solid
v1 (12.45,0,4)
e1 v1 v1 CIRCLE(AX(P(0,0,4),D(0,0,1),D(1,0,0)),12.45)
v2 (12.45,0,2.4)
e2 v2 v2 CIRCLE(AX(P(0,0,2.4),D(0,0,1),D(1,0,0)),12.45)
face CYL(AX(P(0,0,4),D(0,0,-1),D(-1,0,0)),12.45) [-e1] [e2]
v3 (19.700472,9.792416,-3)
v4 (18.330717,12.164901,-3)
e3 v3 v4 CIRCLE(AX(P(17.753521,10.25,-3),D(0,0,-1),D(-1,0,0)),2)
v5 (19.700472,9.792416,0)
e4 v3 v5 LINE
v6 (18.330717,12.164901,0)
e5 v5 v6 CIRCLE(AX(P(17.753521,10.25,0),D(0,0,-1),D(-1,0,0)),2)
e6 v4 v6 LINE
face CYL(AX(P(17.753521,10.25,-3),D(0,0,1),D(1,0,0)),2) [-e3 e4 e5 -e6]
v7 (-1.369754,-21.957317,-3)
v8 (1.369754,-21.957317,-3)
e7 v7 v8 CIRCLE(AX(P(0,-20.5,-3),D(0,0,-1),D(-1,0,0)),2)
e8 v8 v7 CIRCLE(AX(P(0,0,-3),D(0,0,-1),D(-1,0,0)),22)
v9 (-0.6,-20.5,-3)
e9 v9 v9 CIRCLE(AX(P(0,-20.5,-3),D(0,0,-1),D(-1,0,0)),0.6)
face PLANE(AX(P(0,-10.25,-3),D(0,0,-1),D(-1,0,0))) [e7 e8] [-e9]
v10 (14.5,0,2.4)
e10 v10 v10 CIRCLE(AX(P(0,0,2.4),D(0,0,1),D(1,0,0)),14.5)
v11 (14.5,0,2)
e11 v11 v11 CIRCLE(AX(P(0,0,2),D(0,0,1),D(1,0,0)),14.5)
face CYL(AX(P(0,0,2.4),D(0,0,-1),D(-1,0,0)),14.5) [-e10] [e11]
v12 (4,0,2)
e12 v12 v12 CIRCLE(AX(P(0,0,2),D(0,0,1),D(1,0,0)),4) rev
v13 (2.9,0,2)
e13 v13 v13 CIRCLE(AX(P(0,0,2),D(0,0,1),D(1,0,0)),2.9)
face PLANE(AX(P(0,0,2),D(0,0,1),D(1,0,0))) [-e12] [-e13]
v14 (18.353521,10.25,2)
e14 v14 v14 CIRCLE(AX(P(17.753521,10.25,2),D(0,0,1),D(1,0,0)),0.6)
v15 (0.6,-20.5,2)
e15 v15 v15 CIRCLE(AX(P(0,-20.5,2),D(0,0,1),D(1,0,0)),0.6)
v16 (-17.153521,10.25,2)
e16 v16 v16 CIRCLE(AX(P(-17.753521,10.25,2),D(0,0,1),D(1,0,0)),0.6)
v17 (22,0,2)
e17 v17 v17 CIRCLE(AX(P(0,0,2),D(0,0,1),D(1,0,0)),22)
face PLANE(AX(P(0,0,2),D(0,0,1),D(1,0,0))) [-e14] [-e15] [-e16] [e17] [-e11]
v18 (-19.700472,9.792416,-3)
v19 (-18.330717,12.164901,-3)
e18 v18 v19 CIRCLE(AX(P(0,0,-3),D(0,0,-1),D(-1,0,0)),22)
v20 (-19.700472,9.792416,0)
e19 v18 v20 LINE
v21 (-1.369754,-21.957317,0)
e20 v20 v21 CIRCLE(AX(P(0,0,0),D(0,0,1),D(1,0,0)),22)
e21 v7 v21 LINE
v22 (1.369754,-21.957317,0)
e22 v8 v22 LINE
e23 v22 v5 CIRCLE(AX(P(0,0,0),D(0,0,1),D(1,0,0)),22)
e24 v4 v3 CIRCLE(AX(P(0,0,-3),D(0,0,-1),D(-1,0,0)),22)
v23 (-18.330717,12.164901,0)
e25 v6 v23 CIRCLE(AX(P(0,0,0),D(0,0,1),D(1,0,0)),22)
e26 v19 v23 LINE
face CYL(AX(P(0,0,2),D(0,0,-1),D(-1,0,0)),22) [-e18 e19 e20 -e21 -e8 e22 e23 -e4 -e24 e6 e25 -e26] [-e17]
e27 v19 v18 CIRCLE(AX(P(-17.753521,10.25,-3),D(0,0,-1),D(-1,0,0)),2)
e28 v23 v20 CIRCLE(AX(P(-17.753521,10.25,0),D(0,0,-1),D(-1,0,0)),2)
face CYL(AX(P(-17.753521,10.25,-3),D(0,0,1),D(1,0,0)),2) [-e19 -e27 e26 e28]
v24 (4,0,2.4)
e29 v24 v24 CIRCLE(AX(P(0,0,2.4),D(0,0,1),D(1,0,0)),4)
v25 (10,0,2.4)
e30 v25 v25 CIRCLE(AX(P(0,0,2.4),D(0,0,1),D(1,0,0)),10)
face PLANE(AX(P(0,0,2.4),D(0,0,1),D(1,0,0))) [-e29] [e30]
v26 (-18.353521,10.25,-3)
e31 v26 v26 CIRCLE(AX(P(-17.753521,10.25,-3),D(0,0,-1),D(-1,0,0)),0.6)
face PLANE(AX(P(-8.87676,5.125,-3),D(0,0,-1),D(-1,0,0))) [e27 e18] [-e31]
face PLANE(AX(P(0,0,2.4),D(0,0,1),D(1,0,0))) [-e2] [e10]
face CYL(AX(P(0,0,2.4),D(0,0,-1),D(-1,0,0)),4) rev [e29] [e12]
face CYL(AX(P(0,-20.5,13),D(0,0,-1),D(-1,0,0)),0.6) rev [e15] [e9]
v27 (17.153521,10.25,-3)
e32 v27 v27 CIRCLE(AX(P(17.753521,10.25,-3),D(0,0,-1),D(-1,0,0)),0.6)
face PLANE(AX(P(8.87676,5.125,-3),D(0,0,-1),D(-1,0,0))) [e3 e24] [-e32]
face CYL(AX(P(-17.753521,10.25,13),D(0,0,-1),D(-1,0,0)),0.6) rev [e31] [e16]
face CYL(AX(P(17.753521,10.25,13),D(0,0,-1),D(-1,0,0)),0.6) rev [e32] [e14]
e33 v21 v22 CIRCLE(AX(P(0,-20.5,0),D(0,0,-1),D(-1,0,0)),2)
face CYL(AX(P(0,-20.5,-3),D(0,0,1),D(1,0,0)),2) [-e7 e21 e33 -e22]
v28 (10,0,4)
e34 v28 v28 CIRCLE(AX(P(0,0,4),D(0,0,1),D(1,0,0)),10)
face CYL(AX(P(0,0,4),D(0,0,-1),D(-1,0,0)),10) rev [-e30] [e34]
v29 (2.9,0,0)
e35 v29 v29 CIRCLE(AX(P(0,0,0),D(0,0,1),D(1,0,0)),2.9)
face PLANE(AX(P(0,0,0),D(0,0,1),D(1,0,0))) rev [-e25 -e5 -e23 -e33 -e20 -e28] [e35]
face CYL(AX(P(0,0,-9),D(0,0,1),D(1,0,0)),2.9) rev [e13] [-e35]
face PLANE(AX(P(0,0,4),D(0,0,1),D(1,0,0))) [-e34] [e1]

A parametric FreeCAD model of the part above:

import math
import FreeCAD as App
import Part
import Sketcher

doc = App.newDocument("Part")
body = doc.addObject("PartDesign::Body", "Body")

# Sketch on XY plane
sketch1 = body.newObject("Sketcher::SketchObject", "Sketch")
sketch1.AttachmentSupport = (doc.getObject("XY_Plane"), [""])
sketch1.MapMode = "FlatFace"
sketch1.addGeometry(Part.Circle(App.Vector(0, 0, 0), App.Vector(0, 0, 1), 22), False)
sketch1.addConstraint([
    Sketcher.Constraint("Coincident", 0, 3, -1, 1),
    Sketcher.Constraint("Diameter", 0, 44.0),
])
pad1 = body.newObject("PartDesign::Pad", "Pad")
pad1.Profile = sketch1
pad1.Length = 2

# Sketch on XY plane
sketch2 = body.newObject("Sketcher::SketchObject", "Sketch001")
sketch2.AttachmentSupport = (doc.getObject("XY_Plane"), [""])
sketch2.MapMode = "FlatFace"
sketch2.AttachmentOffset = App.Placement(App.Vector(0, 0, 2), App.Rotation())
sketch2.addGeometry([
    Part.Circle(App.Vector(0, 0, 0), App.Vector(0, 0, 1), 12.45),
    Part.Circle(App.Vector(0, 0, 0), App.Vector(0, 0, 1), 10),
], False)
sketch2.addConstraint([
    Sketcher.Constraint("Coincident", 0, 3, -1, 1),
    Sketcher.Constraint("Coincident", 1, 3, -1, 1),
    Sketcher.Constraint("Diameter", 1, 20.0),
    Sketcher.Constraint("Diameter", 0, 24.9),
])
pad2 = body.newObject("PartDesign::Pad", "Pad001")
pad2.Profile = sketch2
pad2.Length = 2

# Sketch on XY plane
sketch3 = body.newObject("Sketcher::SketchObject", "Sketch002")
sketch3.AttachmentSupport = (doc.getObject("XY_Plane"), [""])
sketch3.MapMode = "FlatFace"
sketch3.AttachmentOffset = App.Placement(App.Vector(0, 0, 2), App.Rotation())
sketch3.addGeometry(Part.Circle(App.Vector(0, 0, 0), App.Vector(0, 0, 1), 2.9), False)
sketch3.addConstraint([
    Sketcher.Constraint("Coincident", 0, 3, -1, 1),
    Sketcher.Constraint("Diameter", 0, 5.8),
])
pocket1 = body.newObject("PartDesign::Pocket", "Pocket")
pocket1.Profile = sketch3
pocket1.Length = 11

# Sketch on XY plane
sketch4 = body.newObject("Sketcher::SketchObject", "Sketch003")
sketch4.AttachmentSupport = (doc.getObject("XY_Plane"), [""])
sketch4.MapMode = "FlatFace"
sketch4.addGeometry([
    Part.ArcOfCircle(Part.Circle(App.Vector(0, -20.5, 0), App.Vector(0, 0, 1), 2), math.radians(-46.774052), math.radians(226.774052)),  # 0
    Part.ArcOfCircle(Part.Circle(App.Vector(0, 0, 0), App.Vector(0, 0, 1), 22), math.radians(-93.569633), math.radians(-86.430367)),  # 1
    Part.ArcOfCircle(Part.Circle(App.Vector(17.753521, 10.25, 0), App.Vector(0, 0, 1), 2), math.radians(73.225948), math.radians(346.774052)),  # 2
    Part.ArcOfCircle(Part.Circle(App.Vector(0, 0, 0), App.Vector(0, 0, 1), 22), math.radians(26.430367), math.radians(33.569633)),  # 3
    Part.ArcOfCircle(Part.Circle(App.Vector(-17.753521, 10.25, 0), App.Vector(0, 0, 1), 2), math.radians(-166.774052), math.radians(106.774052)),  # 4
    Part.ArcOfCircle(Part.Circle(App.Vector(0, 0, 0), App.Vector(0, 0, 1), 22), math.radians(146.430367), math.radians(153.569633)),  # 5
], False)
sketch4.addConstraint([
    Sketcher.Constraint("Coincident", 0, 1, 1, 2),
    Sketcher.Constraint("Coincident", 1, 1, 0, 2),
    Sketcher.Constraint("Coincident", 2, 1, 3, 2),
    Sketcher.Constraint("Coincident", 3, 1, 2, 2),
    Sketcher.Constraint("Coincident", 4, 1, 5, 2),
    Sketcher.Constraint("Coincident", 5, 1, 4, 2),
    Sketcher.Constraint("Coincident", 1, 3, -1, 1),
    Sketcher.Constraint("Coincident", 3, 3, -1, 1),
    Sketcher.Constraint("Coincident", 5, 3, -1, 1),
    Sketcher.Constraint("Equal", 0, 2),
    Sketcher.Constraint("Equal", 1, 3),
    Sketcher.Constraint("Equal", 2, 4),
    Sketcher.Constraint("Equal", 3, 5),
    Sketcher.Constraint("Symmetric", 2, 3, 4, 3, -2),
    Sketcher.Constraint("PointOnObject", 0, 3, -2),
    Sketcher.Constraint("Radius", 0, 2.0),
    Sketcher.Constraint("Radius", 1, 22.0),
    Sketcher.Constraint("DistanceY", 0, 3, -1, 1, 20.5),
    Sketcher.Constraint("DistanceY", -1, 1, 2, 3, 10.25),
    Sketcher.Constraint("DistanceY", -1, 1, 2, 1, 12.164901),
])
pad3 = body.newObject("PartDesign::Pad", "Pad002")
pad3.Profile = sketch4
pad3.Length = 3
pad3.Reversed = True

# Sketch on XY plane
sketch5 = body.newObject("Sketcher::SketchObject", "Sketch004")
sketch5.AttachmentSupport = (doc.getObject("XY_Plane"), [""])
sketch5.MapMode = "FlatFace"
sketch5.AttachmentOffset = App.Placement(App.Vector(0, 0, -3), App.Rotation())
sketch5.addGeometry([
    Part.Circle(App.Vector(0, -20.5, 0), App.Vector(0, 0, 1), 0.6),
    Part.Circle(App.Vector(17.753521, 10.25, 0), App.Vector(0, 0, 1), 0.6),
    Part.Circle(App.Vector(-17.753521, 10.25, 0), App.Vector(0, 0, 1), 0.6),
], False)
sketch5.addConstraint([
    Sketcher.Constraint("Equal", 0, 1),
    Sketcher.Constraint("Equal", 1, 2),
    Sketcher.Constraint("Symmetric", 1, 3, 2, 3, -2),
    Sketcher.Constraint("PointOnObject", 0, 3, -2),
    Sketcher.Constraint("Diameter", 0, 1.2),
    Sketcher.Constraint("DistanceY", 0, 3, -1, 1, 20.5),
    Sketcher.Constraint("DistanceY", -1, 1, 1, 3, 10.25),
    Sketcher.Constraint("DistanceX", -1, 1, 1, 3, 17.753521),
])
pocket2 = body.newObject("PartDesign::Pocket", "Pocket001")
pocket2.Profile = sketch5
pocket2.Length = 16
pocket2.Reversed = True

# Sketch on XY plane
sketch6 = body.newObject("Sketcher::SketchObject", "Sketch005")
sketch6.AttachmentSupport = (doc.getObject("XY_Plane"), [""])
sketch6.MapMode = "FlatFace"
sketch6.AttachmentOffset = App.Placement(App.Vector(0, 0, 2), App.Rotation())
sketch6.addGeometry([
    Part.Circle(App.Vector(0, 0, 0), App.Vector(0, 0, 1), 14.5),
    Part.Circle(App.Vector(0, 0, 0), App.Vector(0, 0, 1), 4),
], False)
sketch6.addConstraint([
    Sketcher.Constraint("Coincident", 0, 3, -1, 1),
    Sketcher.Constraint("Coincident", 1, 3, -1, 1),
    Sketcher.Constraint("Diameter", 0, 29.0),
    Sketcher.Constraint("Diameter", 1, 8.0),
])
pad4 = body.newObject("PartDesign::Pad", "Pad003")
pad4.Profile = sketch6
pad4.Length = 0.4

doc.recompute()
